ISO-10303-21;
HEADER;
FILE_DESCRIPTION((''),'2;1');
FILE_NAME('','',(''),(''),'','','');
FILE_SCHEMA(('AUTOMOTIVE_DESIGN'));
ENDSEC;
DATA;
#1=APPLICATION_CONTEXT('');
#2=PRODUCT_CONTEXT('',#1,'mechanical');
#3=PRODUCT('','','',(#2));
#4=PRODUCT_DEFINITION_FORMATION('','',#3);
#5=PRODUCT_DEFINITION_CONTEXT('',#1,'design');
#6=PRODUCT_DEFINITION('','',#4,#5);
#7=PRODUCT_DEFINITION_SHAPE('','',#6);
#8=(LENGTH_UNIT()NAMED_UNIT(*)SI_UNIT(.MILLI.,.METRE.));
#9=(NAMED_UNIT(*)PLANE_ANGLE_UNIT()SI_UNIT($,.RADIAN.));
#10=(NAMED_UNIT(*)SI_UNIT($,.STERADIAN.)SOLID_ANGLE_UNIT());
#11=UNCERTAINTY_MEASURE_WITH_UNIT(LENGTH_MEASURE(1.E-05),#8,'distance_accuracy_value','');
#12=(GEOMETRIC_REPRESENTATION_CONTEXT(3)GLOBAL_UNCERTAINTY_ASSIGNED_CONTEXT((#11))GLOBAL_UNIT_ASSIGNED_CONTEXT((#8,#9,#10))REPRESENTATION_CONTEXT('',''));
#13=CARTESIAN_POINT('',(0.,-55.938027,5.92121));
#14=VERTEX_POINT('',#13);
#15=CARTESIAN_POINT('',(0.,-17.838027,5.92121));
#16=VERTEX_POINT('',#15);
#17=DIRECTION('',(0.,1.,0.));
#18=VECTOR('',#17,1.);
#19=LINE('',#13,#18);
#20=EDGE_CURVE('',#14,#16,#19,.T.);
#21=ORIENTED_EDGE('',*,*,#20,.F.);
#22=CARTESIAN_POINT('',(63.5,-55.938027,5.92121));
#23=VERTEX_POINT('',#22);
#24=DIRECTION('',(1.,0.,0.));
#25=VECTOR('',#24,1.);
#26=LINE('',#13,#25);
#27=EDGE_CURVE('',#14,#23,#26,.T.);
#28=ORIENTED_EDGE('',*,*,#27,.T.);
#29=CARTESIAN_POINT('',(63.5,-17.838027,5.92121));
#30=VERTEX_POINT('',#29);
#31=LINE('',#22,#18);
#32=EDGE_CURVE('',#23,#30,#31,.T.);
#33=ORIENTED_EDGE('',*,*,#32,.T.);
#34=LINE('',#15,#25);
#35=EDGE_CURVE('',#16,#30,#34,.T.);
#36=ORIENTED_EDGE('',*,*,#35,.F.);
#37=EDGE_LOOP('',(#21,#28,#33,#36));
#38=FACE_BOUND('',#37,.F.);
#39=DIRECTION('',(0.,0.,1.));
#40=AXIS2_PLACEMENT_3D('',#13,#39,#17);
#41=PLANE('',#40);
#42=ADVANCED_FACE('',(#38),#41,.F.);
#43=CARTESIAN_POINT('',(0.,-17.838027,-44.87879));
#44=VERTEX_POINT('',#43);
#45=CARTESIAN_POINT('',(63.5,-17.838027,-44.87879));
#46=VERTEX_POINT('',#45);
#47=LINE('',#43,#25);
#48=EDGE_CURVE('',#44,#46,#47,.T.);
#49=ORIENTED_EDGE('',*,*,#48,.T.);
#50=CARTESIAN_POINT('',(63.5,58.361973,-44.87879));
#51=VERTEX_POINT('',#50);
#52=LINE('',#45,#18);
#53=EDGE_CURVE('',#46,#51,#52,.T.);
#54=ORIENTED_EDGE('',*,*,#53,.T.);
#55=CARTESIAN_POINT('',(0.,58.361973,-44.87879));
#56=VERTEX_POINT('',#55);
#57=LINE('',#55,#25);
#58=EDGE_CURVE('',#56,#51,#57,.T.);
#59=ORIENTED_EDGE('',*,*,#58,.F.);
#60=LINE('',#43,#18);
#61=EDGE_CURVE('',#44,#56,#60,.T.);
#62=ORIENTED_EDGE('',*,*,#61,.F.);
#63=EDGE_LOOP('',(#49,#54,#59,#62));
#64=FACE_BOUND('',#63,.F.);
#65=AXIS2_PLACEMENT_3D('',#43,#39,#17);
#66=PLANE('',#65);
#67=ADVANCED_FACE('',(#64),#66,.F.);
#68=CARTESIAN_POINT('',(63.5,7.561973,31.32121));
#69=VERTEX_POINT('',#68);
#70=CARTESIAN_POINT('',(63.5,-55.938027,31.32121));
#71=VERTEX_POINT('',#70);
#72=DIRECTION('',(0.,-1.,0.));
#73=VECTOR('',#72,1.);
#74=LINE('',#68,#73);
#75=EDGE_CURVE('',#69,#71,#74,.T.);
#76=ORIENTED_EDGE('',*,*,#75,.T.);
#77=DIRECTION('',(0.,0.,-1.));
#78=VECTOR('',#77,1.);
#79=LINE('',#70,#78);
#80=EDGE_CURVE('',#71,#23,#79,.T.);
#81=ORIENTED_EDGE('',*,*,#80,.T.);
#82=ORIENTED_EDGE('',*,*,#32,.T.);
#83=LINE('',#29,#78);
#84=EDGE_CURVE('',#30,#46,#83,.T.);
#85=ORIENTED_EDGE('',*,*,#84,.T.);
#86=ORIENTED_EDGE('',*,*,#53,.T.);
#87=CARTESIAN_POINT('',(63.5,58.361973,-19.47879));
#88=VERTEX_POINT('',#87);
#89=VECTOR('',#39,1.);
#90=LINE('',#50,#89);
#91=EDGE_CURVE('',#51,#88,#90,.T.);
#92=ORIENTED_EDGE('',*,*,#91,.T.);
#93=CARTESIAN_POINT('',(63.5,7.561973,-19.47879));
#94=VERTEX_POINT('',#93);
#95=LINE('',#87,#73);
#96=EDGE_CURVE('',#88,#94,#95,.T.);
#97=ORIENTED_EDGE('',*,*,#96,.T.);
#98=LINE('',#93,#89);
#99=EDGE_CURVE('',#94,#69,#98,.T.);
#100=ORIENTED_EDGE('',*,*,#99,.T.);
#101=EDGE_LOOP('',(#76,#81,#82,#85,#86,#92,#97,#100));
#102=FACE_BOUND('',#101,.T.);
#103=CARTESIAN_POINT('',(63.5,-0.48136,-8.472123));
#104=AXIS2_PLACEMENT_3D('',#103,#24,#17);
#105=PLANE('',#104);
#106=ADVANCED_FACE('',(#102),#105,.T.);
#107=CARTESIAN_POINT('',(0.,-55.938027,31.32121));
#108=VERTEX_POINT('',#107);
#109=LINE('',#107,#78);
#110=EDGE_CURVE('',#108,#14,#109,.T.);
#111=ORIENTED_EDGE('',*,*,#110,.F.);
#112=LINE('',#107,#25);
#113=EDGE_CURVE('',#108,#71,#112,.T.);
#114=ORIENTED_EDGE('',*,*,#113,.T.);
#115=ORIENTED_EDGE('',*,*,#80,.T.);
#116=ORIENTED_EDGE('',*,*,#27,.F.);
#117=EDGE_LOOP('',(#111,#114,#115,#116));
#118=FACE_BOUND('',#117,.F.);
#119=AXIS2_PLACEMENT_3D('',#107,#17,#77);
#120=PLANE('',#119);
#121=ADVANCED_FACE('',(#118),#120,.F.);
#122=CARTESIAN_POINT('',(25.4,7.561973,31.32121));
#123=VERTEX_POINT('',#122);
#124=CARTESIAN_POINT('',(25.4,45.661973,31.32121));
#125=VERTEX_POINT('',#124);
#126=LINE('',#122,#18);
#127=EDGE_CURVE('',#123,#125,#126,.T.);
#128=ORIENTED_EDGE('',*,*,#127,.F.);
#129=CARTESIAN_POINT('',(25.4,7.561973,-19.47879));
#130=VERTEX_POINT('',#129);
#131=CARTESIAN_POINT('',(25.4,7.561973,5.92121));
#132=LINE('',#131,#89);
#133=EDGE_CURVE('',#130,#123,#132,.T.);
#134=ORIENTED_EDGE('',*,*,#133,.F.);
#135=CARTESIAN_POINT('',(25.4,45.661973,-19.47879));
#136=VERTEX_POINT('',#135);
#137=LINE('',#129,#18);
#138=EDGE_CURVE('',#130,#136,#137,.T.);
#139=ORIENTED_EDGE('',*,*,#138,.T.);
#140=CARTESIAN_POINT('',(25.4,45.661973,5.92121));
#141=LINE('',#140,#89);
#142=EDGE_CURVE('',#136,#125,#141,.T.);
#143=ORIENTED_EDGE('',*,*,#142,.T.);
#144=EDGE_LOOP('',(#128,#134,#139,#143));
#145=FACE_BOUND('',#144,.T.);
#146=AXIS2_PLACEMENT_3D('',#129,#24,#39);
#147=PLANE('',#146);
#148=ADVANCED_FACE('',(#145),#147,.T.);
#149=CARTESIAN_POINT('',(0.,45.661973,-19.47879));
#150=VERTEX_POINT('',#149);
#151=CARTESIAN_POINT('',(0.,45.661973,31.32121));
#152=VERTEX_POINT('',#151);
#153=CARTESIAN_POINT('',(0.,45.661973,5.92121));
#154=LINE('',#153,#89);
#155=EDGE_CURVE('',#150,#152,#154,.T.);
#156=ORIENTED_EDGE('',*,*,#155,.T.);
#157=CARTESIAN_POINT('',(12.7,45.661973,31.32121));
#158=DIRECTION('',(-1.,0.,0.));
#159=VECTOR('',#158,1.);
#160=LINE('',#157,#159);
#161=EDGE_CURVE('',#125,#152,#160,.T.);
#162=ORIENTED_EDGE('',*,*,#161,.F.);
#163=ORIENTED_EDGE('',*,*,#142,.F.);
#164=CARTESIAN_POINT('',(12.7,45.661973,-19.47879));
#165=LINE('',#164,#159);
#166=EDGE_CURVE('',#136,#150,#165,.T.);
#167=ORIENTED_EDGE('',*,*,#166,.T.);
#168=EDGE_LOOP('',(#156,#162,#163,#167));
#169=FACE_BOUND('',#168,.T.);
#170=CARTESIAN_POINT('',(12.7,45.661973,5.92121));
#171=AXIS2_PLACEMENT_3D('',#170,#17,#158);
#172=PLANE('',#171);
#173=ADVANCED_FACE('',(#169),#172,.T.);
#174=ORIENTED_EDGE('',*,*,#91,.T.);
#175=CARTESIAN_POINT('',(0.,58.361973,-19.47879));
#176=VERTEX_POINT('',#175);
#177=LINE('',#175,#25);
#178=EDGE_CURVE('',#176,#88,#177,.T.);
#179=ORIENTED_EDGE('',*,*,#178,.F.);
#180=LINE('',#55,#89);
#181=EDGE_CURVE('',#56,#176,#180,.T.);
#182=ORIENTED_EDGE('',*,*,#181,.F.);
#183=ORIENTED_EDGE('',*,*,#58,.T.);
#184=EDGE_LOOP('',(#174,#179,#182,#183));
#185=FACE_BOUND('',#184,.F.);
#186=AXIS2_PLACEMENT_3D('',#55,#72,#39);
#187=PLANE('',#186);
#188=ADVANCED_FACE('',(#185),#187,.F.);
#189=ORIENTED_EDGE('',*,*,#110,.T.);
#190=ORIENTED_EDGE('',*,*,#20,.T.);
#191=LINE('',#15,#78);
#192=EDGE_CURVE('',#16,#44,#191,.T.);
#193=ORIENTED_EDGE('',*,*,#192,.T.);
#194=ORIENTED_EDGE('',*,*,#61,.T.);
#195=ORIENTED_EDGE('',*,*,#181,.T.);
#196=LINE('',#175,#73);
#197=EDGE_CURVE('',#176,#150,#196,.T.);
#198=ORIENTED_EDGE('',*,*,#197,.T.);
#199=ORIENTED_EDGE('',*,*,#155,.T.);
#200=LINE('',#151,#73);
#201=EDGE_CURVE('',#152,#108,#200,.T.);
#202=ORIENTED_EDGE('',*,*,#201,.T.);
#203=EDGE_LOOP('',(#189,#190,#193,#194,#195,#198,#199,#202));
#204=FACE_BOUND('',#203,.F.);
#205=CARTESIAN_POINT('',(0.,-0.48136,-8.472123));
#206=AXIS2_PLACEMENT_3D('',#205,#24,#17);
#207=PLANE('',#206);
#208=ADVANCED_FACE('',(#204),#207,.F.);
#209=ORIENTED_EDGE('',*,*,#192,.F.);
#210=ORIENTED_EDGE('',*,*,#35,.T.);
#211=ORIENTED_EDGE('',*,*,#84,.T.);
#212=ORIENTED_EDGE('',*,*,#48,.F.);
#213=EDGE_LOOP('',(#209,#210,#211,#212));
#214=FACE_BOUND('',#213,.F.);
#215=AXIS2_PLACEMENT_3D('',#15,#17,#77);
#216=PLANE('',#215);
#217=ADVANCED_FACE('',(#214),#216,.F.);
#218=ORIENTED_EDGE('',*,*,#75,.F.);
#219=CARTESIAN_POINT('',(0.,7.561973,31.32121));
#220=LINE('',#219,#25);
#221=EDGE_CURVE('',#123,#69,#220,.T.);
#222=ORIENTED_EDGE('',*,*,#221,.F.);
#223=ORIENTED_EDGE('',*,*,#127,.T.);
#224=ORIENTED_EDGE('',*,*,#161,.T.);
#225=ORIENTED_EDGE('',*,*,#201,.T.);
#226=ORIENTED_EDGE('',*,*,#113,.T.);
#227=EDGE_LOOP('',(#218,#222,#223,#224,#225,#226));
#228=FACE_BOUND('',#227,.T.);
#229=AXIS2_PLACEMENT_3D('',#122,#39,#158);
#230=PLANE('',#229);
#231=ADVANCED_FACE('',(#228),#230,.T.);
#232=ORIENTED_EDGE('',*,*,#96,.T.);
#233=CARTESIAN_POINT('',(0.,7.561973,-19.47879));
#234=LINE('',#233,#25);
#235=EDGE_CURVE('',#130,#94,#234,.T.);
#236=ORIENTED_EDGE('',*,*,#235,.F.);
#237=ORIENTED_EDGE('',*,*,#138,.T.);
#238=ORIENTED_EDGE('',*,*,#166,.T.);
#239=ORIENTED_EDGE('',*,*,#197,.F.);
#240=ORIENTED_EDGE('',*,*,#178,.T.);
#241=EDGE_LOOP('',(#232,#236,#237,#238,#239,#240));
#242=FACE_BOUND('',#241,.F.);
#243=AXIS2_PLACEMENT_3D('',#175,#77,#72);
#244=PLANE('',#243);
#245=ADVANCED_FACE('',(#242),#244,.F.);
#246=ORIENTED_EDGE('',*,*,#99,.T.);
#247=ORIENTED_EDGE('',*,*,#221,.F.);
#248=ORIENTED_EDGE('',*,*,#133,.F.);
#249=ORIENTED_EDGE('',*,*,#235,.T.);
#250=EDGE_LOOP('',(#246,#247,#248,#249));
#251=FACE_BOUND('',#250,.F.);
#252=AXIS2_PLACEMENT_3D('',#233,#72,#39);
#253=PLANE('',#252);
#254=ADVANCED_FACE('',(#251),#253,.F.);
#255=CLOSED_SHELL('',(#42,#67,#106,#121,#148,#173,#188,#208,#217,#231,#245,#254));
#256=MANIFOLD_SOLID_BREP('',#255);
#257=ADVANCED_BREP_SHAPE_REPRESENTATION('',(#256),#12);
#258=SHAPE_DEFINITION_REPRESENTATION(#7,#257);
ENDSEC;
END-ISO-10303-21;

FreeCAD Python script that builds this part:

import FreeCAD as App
import Part
import Sketcher
from FreeCAD import Vector
Q = App.Units.Quantity

doc = App.newDocument("Part")
body = doc.addObject("PartDesign::Body", "Body")

sketch1 = body.newObject("Sketcher::SketchObject", "Sketch")
sketch1.AttachmentSupport = (doc.getObject("YZ_Plane"), [""])
sketch1.MapMode = "FlatFace"
sketch1.addGeometry([
    Part.LineSegment(Vector(8, 31, 0), Vector(-56, 31, 0)),
    Part.LineSegment(Vector(-56, 31, 0), Vector(-56, 6, 0)),
    Part.LineSegment(Vector(-56, 6, 0), Vector(-18, 6, 0)),
    Part.LineSegment(Vector(-18, 6, 0), Vector(-18, -45, 0)),
    Part.LineSegment(Vector(-18, -45, 0), Vector(58, -45, 0)),
    Part.LineSegment(Vector(58, -45, 0), Vector(58, -19, 0)),
    Part.LineSegment(Vector(58, -19, 0), Vector(8, -19, 0)),
    Part.LineSegment(Vector(8, -19, 0), Vector(8, 31, 0)),
], False)
sketch1.addConstraint([
    Sketcher.Constraint("Coincident", 0, 2, 1, 1),
    Sketcher.Constraint("Coincident", 1, 2, 2, 1),
    Sketcher.Constraint("Coincident", 2, 2, 3, 1),
    Sketcher.Constraint("Coincident", 3, 2, 4, 1),
    Sketcher.Constraint("Coincident", 4, 2, 5, 1),
    Sketcher.Constraint("Coincident", 5, 2, 6, 1),
    Sketcher.Constraint("Coincident", 6, 2, 7, 1),
    Sketcher.Constraint("Coincident", 7, 2, 0, 1),
    Sketcher.Constraint("Horizontal", 0),
    Sketcher.Constraint("Vertical", 1),
    Sketcher.Constraint("Horizontal", 2),
    Sketcher.Constraint("Vertical", 3),
    Sketcher.Constraint("Horizontal", 4),
    Sketcher.Constraint("Vertical", 5),
    Sketcher.Constraint("Horizontal", 6),
    Sketcher.Constraint("Vertical", 7),
    Sketcher.Constraint("Equal", 6, 3),
    Sketcher.Constraint("Equal", 1, 5),
    Sketcher.Constraint("DistanceX", 4, 1, 4, 2, Q("3 in")),
    Sketcher.Constraint("DistanceX", 6, 2, 6, 1, Q("2 in")),
    Sketcher.Constraint("DistanceY", 1, 2, 1, 1, Q("1 in")),
    Sketcher.Constraint("DistanceX", 0, 2, 0, 1, Q("2.5 in")),
    Sketcher.Constraint("DistanceY", -1, 1, 0, 2, Q("31.32121 mm")),
    Sketcher.Constraint("DistanceX", 0, 2, -1, 1, Q("55.938027 mm")),
])
pad1 = body.newObject("PartDesign::Pad", "Pad")
pad1.Profile = sketch1
pad1.Length = Q("2.5 in")

sketch2 = body.newObject("Sketcher::SketchObject", "Sketch001")
sketch2.AttachmentSupport = (doc.getObject("XZ_Plane"), [""])
sketch2.MapMode = "FlatFace"
sketch2.AttachmentOffset = App.Placement(Vector(0, 0, -7.561973), App.Rotation())
sketch2.addGeometry([
    Part.LineSegment(Vector(25, 31, 0), Vector(25, -19, 0)),
    Part.LineSegment(Vector(25, -19, 0), Vector(0, -19, 0)),
    Part.LineSegment(Vector(0, -19, 0), Vector(0, 31, 0)),
    Part.LineSegment(Vector(0, 31, 0), Vector(25, 31, 0)),
], False)
sketch2.addConstraint([
    Sketcher.Constraint("Coincident", 0, 2, 1, 1),
    Sketcher.Constraint("Coincident", 1, 2, 2, 1),
    Sketcher.Constraint("Coincident", 2, 2, 3, 1),
    Sketcher.Constraint("Coincident", 3, 2, 0, 1),
    Sketcher.Constraint("Vertical", 0),
    Sketcher.Constraint("Horizontal", 1),
    Sketcher.Constraint("Vertical", 2),
    Sketcher.Constraint("Horizontal", 3),
    Sketcher.Constraint("PointOnObject", 1, 2, -2),
    Sketcher.Constraint("DistanceX", 1, 2, 1, 1, Q("1 in")),
    Sketcher.Constraint("DistanceY", 0, 2, 0, 1, Q("2 in")),
    Sketcher.Constraint("DistanceY", 0, 2, -1, 1, Q("19.47879 mm")),
])
pad2 = body.newObject("PartDesign::Pad", "Pad001")
pad2.Profile = sketch2
pad2.Length = Q("1.5 in")
pad2.Reversed = True

doc.recompute()
